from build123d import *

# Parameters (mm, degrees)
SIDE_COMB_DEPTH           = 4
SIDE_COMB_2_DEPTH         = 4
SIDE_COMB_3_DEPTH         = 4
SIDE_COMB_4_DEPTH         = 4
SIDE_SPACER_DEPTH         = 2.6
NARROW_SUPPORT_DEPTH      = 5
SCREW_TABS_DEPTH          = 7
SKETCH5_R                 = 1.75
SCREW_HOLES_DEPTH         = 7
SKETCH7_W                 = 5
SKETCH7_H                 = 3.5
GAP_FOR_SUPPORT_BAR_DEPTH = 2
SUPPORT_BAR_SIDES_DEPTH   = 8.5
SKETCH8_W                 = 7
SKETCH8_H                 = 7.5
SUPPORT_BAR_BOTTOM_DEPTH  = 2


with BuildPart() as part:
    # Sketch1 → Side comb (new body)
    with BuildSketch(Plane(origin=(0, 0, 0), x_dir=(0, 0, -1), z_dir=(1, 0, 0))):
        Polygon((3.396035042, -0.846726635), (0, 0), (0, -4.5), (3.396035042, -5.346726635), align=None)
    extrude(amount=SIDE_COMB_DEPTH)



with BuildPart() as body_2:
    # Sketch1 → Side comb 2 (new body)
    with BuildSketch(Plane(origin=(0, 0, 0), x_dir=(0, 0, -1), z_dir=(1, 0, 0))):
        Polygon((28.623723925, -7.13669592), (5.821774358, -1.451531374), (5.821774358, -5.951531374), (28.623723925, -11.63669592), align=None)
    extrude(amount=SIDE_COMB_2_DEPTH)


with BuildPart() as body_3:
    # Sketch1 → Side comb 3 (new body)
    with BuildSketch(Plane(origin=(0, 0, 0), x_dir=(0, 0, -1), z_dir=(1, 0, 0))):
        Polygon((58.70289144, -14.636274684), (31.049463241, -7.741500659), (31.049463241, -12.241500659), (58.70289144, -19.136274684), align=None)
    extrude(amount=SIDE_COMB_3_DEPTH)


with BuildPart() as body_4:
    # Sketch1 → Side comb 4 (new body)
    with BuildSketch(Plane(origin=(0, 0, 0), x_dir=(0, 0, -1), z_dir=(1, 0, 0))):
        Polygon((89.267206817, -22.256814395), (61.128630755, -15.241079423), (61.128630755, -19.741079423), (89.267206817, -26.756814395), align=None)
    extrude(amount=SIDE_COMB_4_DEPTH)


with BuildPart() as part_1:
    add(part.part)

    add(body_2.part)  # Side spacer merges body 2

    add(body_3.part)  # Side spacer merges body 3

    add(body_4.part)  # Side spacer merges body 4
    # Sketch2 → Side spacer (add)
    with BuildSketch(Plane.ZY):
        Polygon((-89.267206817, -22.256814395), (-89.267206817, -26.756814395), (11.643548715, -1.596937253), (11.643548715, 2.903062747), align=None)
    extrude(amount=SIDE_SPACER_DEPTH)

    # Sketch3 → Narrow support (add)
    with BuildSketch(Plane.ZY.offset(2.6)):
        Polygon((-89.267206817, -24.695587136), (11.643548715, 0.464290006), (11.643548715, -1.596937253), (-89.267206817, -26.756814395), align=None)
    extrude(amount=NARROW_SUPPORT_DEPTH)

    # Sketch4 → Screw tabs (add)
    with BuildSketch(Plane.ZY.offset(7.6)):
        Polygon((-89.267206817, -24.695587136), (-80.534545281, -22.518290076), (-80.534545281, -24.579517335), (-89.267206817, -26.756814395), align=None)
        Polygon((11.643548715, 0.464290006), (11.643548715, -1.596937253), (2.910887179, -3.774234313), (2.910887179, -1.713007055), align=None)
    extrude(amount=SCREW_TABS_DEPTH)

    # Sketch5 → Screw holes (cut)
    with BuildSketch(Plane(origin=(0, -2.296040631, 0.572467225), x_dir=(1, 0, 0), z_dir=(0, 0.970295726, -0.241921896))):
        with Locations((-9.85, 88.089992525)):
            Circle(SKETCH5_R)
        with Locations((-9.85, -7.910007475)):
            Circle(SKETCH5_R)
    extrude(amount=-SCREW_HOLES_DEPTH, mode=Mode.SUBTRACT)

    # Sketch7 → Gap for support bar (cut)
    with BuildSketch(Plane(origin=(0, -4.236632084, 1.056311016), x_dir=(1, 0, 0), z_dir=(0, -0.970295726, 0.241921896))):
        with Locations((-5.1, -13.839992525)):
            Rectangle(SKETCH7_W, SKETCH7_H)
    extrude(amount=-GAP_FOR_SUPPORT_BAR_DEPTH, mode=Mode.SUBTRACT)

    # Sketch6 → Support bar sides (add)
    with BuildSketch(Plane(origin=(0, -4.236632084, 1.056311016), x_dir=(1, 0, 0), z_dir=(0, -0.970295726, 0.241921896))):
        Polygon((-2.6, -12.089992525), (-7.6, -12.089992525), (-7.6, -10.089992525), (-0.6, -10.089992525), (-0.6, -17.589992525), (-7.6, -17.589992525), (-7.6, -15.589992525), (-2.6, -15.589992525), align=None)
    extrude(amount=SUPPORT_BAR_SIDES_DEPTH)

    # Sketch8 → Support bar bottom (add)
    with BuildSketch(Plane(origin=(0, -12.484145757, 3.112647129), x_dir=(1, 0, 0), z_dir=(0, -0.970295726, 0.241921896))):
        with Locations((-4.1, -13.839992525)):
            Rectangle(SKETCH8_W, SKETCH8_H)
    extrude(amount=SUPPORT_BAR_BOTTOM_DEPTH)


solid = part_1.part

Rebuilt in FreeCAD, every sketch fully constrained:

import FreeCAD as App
import Part
import Sketcher

V = App.Vector
Q = App.Units.Quantity

doc = App.newDocument("Part")
body = doc.addObject("PartDesign::Body", "Body")

# Sketch on YZ plane
sketch1 = body.newObject("Sketcher::SketchObject", "Sketch")
sketch1.AttachmentSupport = (doc.getObject("YZ_Plane"), [""])
sketch1.MapMode = "FlatFace"
sketch1.addGeometry(Part.LineSegment(V(-0.8, -3.4, 0), V(0, 0, 0)), False)
sketch1.addGeometry(Part.LineSegment(V(0, 0, 0), V(-4.5, 0, 0)), False)
sketch1.addGeometry(Part.LineSegment(V(-4.5, 0, 0), V(-5.3, -3.4, 0)), False)
sketch1.addGeometry(Part.LineSegment(V(-5.3, -3.4, 0), V(-0.8, -3.4, 0)), False)
sketch1.addConstraint(Sketcher.Constraint("Coincident", 0, 2, 1, 1))
sketch1.addConstraint(Sketcher.Constraint("Coincident", 1, 2, 2, 1))
sketch1.addConstraint(Sketcher.Constraint("Coincident", 2, 2, 3, 1))
sketch1.addConstraint(Sketcher.Constraint("Coincident", 3, 2, 0, 1))
sketch1.addConstraint(Sketcher.Constraint("Horizontal", 1))
sketch1.addConstraint(Sketcher.Constraint("Horizontal", 3))
sketch1.addConstraint(Sketcher.Constraint("Coincident", 0, 2, -1, 1))
sketch1.addConstraint(Sketcher.Constraint("Parallel", 0, 2))
sketch1.addConstraint(Sketcher.Constraint("Angle", 0, Q("76 deg")))
sketch1.addConstraint(Sketcher.Constraint("DistanceX", 1, 2, 1, 1, 4.5))
sketch1.addConstraint(Sketcher.Constraint("Distance", 0, 3.5))
pad1 = body.newObject("PartDesign::Pad", "Pad")
pad1.Profile = sketch1
pad1.Length = 4
body2 = doc.addObject("PartDesign::Body", "Body001")

# Sketch on YZ plane
sketch2 = body2.newObject("Sketcher::SketchObject", "Sketch001")
sketch2.AttachmentSupport = (doc.getObject("YZ_Plane001"), [""])
sketch2.MapMode = "FlatFace"
sketch2.addGeometry(Part.LineSegment(V(-7.1, -28.6, 0), V(-1.5, -5.8, 0)), False)
sketch2.addGeometry(Part.LineSegment(V(-1.5, -5.8, 0), V(-6, -5.8, 0)), False)
sketch2.addGeometry(Part.LineSegment(V(-6, -5.8, 0), V(-11.6, -28.6, 0)), False)
sketch2.addGeometry(Part.LineSegment(V(-11.6, -28.6, 0), V(-7.1, -28.6, 0)), False)
sketch2.addConstraint(Sketcher.Constraint("Coincident", 0, 2, 1, 1))
sketch2.addConstraint(Sketcher.Constraint("Coincident", 1, 2, 2, 1))
sketch2.addConstraint(Sketcher.Constraint("Coincident", 2, 2, 3, 1))
sketch2.addConstraint(Sketcher.Constraint("Coincident", 3, 2, 0, 1))
sketch2.addConstraint(Sketcher.Constraint("Horizontal", 1))
sketch2.addConstraint(Sketcher.Constraint("Horizontal", 3))
sketch2.addConstraint(Sketcher.Constraint("Parallel", 0, 2))
sketch2.addConstraint(Sketcher.Constraint("Angle", 0, Q("76 deg")))
sketch2.addConstraint(Sketcher.Constraint("DistanceX", 1, 2, 1, 1, 4.5))
sketch2.addConstraint(Sketcher.Constraint("Distance", 0, 23.5))
sketch2.addConstraint(Sketcher.Constraint("DistanceX", 0, 2, -1, 1, 1.451531))
sketch2.addConstraint(Sketcher.Constraint("DistanceY", 0, 2, -1, 1, 5.821774))
pad2 = body2.newObject("PartDesign::Pad", "Pad001")
pad2.Profile = sketch2
pad2.Length = 4
body3 = doc.addObject("PartDesign::Body", "Body002")

# Sketch on YZ plane
sketch3 = body3.newObject("Sketcher::SketchObject", "Sketch002")
sketch3.AttachmentSupport = (doc.getObject("YZ_Plane002"), [""])
sketch3.MapMode = "FlatFace"
sketch3.addGeometry(Part.LineSegment(V(-14.6, -58.7, 0), V(-7.7, -31, 0)), False)
sketch3.addGeometry(Part.LineSegment(V(-7.7, -31, 0), V(-12.2, -31, 0)), False)
sketch3.addGeometry(Part.LineSegment(V(-12.2, -31, 0), V(-19.1, -58.7, 0)), False)
sketch3.addGeometry(Part.LineSegment(V(-19.1, -58.7, 0), V(-14.6, -58.7, 0)), False)
sketch3.addConstraint(Sketcher.Constraint("Coincident", 0, 2, 1, 1))
sketch3.addConstraint(Sketcher.Constraint("Coincident", 1, 2, 2, 1))
sketch3.addConstraint(Sketcher.Constraint("Coincident", 2, 2, 3, 1))
sketch3.addConstraint(Sketcher.Constraint("Coincident", 3, 2, 0, 1))
sketch3.addConstraint(Sketcher.Constraint("Horizontal", 1))
sketch3.addConstraint(Sketcher.Constraint("Horizontal", 3))
sketch3.addConstraint(Sketcher.Constraint("Parallel", 0, 2))
sketch3.addConstraint(Sketcher.Constraint("Angle", 0, Q("76 deg")))
sketch3.addConstraint(Sketcher.Constraint("DistanceX", 1, 2, 1, 1, 4.5))
sketch3.addConstraint(Sketcher.Constraint("Distance", 0, 28.5))
sketch3.addConstraint(Sketcher.Constraint("DistanceX", 0, 2, -1, 1, 7.741501))
sketch3.addConstraint(Sketcher.Constraint("DistanceY", 2, 2, -1, 1, 58.702891))
pad3 = body3.newObject("PartDesign::Pad", "Pad002")
pad3.Profile = sketch3
pad3.Length = 4
body4 = doc.addObject("PartDesign::Body", "Body003")

# Sketch on YZ plane
sketch4 = body4.newObject("Sketcher::SketchObject", "Sketch003")
sketch4.AttachmentSupport = (doc.getObject("YZ_Plane003"), [""])
sketch4.MapMode = "FlatFace"
sketch4.addGeometry(Part.LineSegment(V(-22.3, -89.3, 0), V(-15.2, -61.1, 0)), False)
sketch4.addGeometry(Part.LineSegment(V(-15.2, -61.1, 0), V(-19.7, -61.1, 0)), False)
sketch4.addGeometry(Part.LineSegment(V(-19.7, -61.1, 0), V(-26.8, -89.3, 0)), False)
sketch4.addGeometry(Part.LineSegment(V(-26.8, -89.3, 0), V(-22.3, -89.3, 0)), False)
sketch4.addConstraint(Sketcher.Constraint("Coincident", 0, 2, 1, 1))
sketch4.addConstraint(Sketcher.Constraint("Coincident", 1, 2, 2, 1))
sketch4.addConstraint(Sketcher.Constraint("Coincident", 2, 2, 3, 1))
sketch4.addConstraint(Sketcher.Constraint("Coincident", 3, 2, 0, 1))
sketch4.addConstraint(Sketcher.Constraint("Horizontal", 1))
sketch4.addConstraint(Sketcher.Constraint("Horizontal", 3))
sketch4.addConstraint(Sketcher.Constraint("Parallel", 0, 2))
sketch4.addConstraint(Sketcher.Constraint("Angle", 0, Q("76 deg")))
sketch4.addConstraint(Sketcher.Constraint("Distance", 0, 29.0))
sketch4.addConstraint(Sketcher.Constraint("DistanceX", 1, 2, 1, 1, 4.5))
sketch4.addConstraint(Sketcher.Constraint("DistanceX", 0, 2, -1, 1, 15.241079))
sketch4.addConstraint(Sketcher.Constraint("DistanceY", 0, 2, -1, 1, 61.128631))
pad4 = body4.newObject("PartDesign::Pad", "Pad003")
pad4.Profile = sketch4
pad4.Length = 4
body.AllowCompound = True
doc.recompute()

boolean = body.newObject("PartDesign::Boolean", "Boolean")
boolean.Type = "Fuse"
boolean.addObjects([body2])
doc.recompute()

boolean2 = body.newObject("PartDesign::Boolean", "Boolean001")
boolean2.Type = "Fuse"
boolean2.addObjects([body3])
doc.recompute()

boolean3 = body.newObject("PartDesign::Boolean", "Boolean002")
boolean3.Type = "Fuse"
boolean3.addObjects([body4])

# Sketch on YZ plane
sketch5 = body.newObject("Sketcher::SketchObject", "Sketch004")
sketch5.AttachmentSupport = (doc.getObject("YZ_Plane"), [""])
sketch5.MapMode = "FlatFace"
sketch5.addGeometry(Part.LineSegment(V(-22.3, -89.3, 0), V(-26.8, -89.3, 0)), False)
sketch5.addGeometry(Part.LineSegment(V(-26.8, -89.3, 0), V(-1.6, 11.6, 0)), False)
sketch5.addGeometry(Part.LineSegment(V(-1.6, 11.6, 0), V(2.9, 11.6, 0)), False)
sketch5.addGeometry(Part.LineSegment(V(2.9, 11.6, 0), V(-22.3, -89.3, 0)), False)
sketch5.addConstraint(Sketcher.Constraint("Coincident", 0, 2, 1, 1))
sketch5.addConstraint(Sketcher.Constraint("Coincident", 1, 2, 2, 1))
sketch5.addConstraint(Sketcher.Constraint("Coincident", 2, 2, 3, 1))
sketch5.addConstraint(Sketcher.Constraint("Coincident", 3, 2, 0, 1))
sketch5.addConstraint(Sketcher.Constraint("Horizontal", 0))
sketch5.addConstraint(Sketcher.Constraint("Horizontal", 2))
sketch5.addConstraint(Sketcher.Constraint("Parallel", 1, 3))
sketch5.addConstraint(Sketcher.Constraint("Angle", 1, Q("76 deg")))
sketch5.addConstraint(Sketcher.Constraint("Distance", 1, 104.0))
sketch5.addConstraint(Sketcher.Constraint("DistanceX", 0, 2, 0, 1, 4.5))
sketch5.addConstraint(Sketcher.Constraint("DistanceY", -1, 1, 1, 2, 11.643549))
sketch5.addConstraint(Sketcher.Constraint("DistanceX", 0, 2, -1, 1, 26.756814))
pad5 = body.newObject("PartDesign::Pad", "Pad004")
pad5.Profile = sketch5
pad5.Length = 2.6
pad5.Reversed = True

# Sketch on YZ plane
sketch6 = body.newObject("Sketcher::SketchObject", "Sketch005")
sketch6.AttachmentSupport = (doc.getObject("YZ_Plane"), [""])
sketch6.MapMode = "FlatFace"
sketch6.AttachmentOffset = App.Placement(V(0, 0, -2.6), App.Rotation())
sketch6.addGeometry(Part.LineSegment(V(0.5, 11.6, 0), V(-24.7, -89.3, 0)), False)
sketch6.addGeometry(Part.LineSegment(V(-24.7, -89.3, 0), V(-26.8, -89.3, 0)), False)
sketch6.addGeometry(Part.LineSegment(V(-26.8, -89.3, 0), V(-1.6, 11.6, 0)), False)
sketch6.addGeometry(Part.LineSegment(V(-1.6, 11.6, 0), V(0.5, 11.6, 0)), False)
sketch6.addConstraint(Sketcher.Constraint("Coincident", 0, 2, 1, 1))
sketch6.addConstraint(Sketcher.Constraint("Coincident", 1, 2, 2, 1))
sketch6.addConstraint(Sketcher.Constraint("Coincident", 2, 2, 3, 1))
sketch6.addConstraint(Sketcher.Constraint("Coincident", 3, 2, 0, 1))
sketch6.addConstraint(Sketcher.Constraint("Horizontal", 1))
sketch6.addConstraint(Sketcher.Constraint("Horizontal", 3))
sketch6.addConstraint(Sketcher.Constraint("Parallel", 0, 2))
sketch6.addConstraint(Sketcher.Constraint("Angle", 0, Q("-104 deg")))
sketch6.addConstraint(Sketcher.Constraint("Distance", 0, 104.0))
sketch6.addConstraint(Sketcher.Constraint("DistanceX", 1, 2, 1, 1, 2.061227))
sketch6.addConstraint(Sketcher.Constraint("DistanceY", -1, 1, 2, 2, 11.643549))
sketch6.addConstraint(Sketcher.Constraint("DistanceX", -1, 1, 3, 2, 0.46429))
pad6 = body.newObject("PartDesign::Pad", "Pad005")
pad6.Profile = sketch6
pad6.Length = 5
pad6.Reversed = True

# Sketch on YZ plane
sketch7 = body.newObject("Sketcher::SketchObject", "Sketch006")
sketch7.AttachmentSupport = (doc.getObject("YZ_Plane"), [""])
sketch7.MapMode = "FlatFace"
sketch7.AttachmentOffset = App.Placement(V(0, 0, -7.6), App.Rotation())
sketch7.addGeometry(Part.LineSegment(V(-22.5, -80.5, 0), V(-24.7, -89.3, 0)), False)
sketch7.addGeometry(Part.LineSegment(V(-24.7, -89.3, 0), V(-26.8, -89.3, 0)), False)
sketch7.addGeometry(Part.LineSegment(V(-26.8, -89.3, 0), V(-24.6, -80.5, 0)), False)
sketch7.addGeometry(Part.LineSegment(V(-24.6, -80.5, 0), V(-22.5, -80.5, 0)), False)
sketch7.addGeometry(Part.LineSegment(V(-1.6, 11.6, 0), V(0.5, 11.6, 0)), False)
sketch7.addGeometry(Part.LineSegment(V(0.5, 11.6, 0), V(-1.7, 2.9, 0)), False)
sketch7.addGeometry(Part.LineSegment(V(-1.7, 2.9, 0), V(-3.8, 2.9, 0)), False)
sketch7.addGeometry(Part.LineSegment(V(-3.8, 2.9, 0), V(-1.6, 11.6, 0)), False)
sketch7.addConstraint(Sketcher.Constraint("Coincident", 0, 2, 1, 1))
sketch7.addConstraint(Sketcher.Constraint("Coincident", 1, 2, 2, 1))
sketch7.addConstraint(Sketcher.Constraint("Coincident", 2, 2, 3, 1))
sketch7.addConstraint(Sketcher.Constraint("Coincident", 3, 2, 0, 1))
sketch7.addConstraint(Sketcher.Constraint("Coincident", 4, 2, 5, 1))
sketch7.addConstraint(Sketcher.Constraint("Coincident", 5, 2, 6, 1))
sketch7.addConstraint(Sketcher.Constraint("Coincident", 6, 2, 7, 1))
sketch7.addConstraint(Sketcher.Constraint("Coincident", 7, 2, 4, 1))
sketch7.addConstraint(Sketcher.Constraint("Horizontal", 1))
sketch7.addConstraint(Sketcher.Constraint("Horizontal", 3))
sketch7.addConstraint(Sketcher.Constraint("Horizontal", 4))
sketch7.addConstraint(Sketcher.Constraint("Horizontal", 6))
sketch7.addConstraint(Sketcher.Constraint("Parallel", 0, 2))
sketch7.addConstraint(Sketcher.Constraint("Parallel", 2, 5))
sketch7.addConstraint(Sketcher.Constraint("Parallel", 5, 7))
sketch7.addConstraint(Sketcher.Constraint("Equal", 3, 4))
sketch7.addConstraint(Sketcher.Constraint("Equal", 2, 5))
sketch7.addConstraint(Sketcher.Constraint("Angle", 0, Q("-104 deg")))
sketch7.addConstraint(Sketcher.Constraint("Distance", 0, 9.0))
sketch7.addConstraint(Sketcher.Constraint("DistanceX", 1, 2, 1, 1, 2.061227))
sketch7.addConstraint(Sketcher.Constraint("DistanceX", 3, 2, -1, 1, 22.51829))
sketch7.addConstraint(Sketcher.Constraint("DistanceX", -1, 1, 4, 2, 0.46429))
sketch7.addConstraint(Sketcher.Constraint("DistanceY", -1, 1, 4, 2, 11.643549))
sketch7.addConstraint(Sketcher.Constraint("DistanceY", 0, 2, -1, 1, 89.267207))
pad7 = body.newObject("PartDesign::Pad", "Pad006")
pad7.Profile = sketch7
pad7.Length = 7
pad7.Reversed = True

# Sketch on an angled plane
sketch8 = body.newObject("Sketcher::SketchObject", "Sketch007")
sketch8.Placement = App.Placement(V(0, -2.296041, 0.572467), App.Rotation(V(1, 0, 0), V(0, -0.241921896, -0.970295726), V(0, 0.970295726, -0.241921896), "ZXY"))
sketch8.addGeometry(Part.Circle(V(-9.8, 88.1, 0), V(0, 0, 1), 1.8), False)
sketch8.addGeometry(Part.Circle(V(-9.8, -7.9, 0), V(0, 0, 1), 1.8), False)
sketch8.addConstraint(Sketcher.Constraint("Equal", 0, 1))
sketch8.addConstraint(Sketcher.Constraint("Vertical", 0, 3, 1, 3))
sketch8.addConstraint(Sketcher.Constraint("Diameter", 0, 3.5))
sketch8.addConstraint(Sketcher.Constraint("DistanceY", 1, 3, 0, 3, 96.0))
sketch8.addConstraint(Sketcher.Constraint("DistanceX", 0, 3, -1, 1, 9.85))
sketch8.addConstraint(Sketcher.Constraint("DistanceY", -1, 1, 0, 3, 88.089992))
pocket1 = body.newObject("PartDesign::Pocket", "Pocket")
pocket1.Profile = sketch8
pocket1.Length = 7

# Sketch on an angled plane
sketch9 = body.newObject("Sketcher::SketchObject", "Sketch008")
sketch9.Placement = App.Placement(V(0, -4.236632, 1.056311), App.Rotation(V(1, 0, 0), V(0, 0.241921896, 0.970295726), V(0, -0.970295726, 0.241921896), "ZXY"))
sketch9.addGeometry(Part.LineSegment(V(-7.6, -12.1, 0), V(-7.6, -15.6, 0)), False)
sketch9.addGeometry(Part.LineSegment(V(-7.6, -15.6, 0), V(-2.6, -15.6, 0)), False)
sketch9.addGeometry(Part.LineSegment(V(-2.6, -15.6, 0), V(-2.6, -12.1, 0)), False)
sketch9.addGeometry(Part.LineSegment(V(-2.6, -12.1, 0), V(-7.6, -12.1, 0)), False)
sketch9.addConstraint(Sketcher.Constraint("Coincident", 0, 2, 1, 1))
sketch9.addConstraint(Sketcher.Constraint("Coincident", 1, 2, 2, 1))
sketch9.addConstraint(Sketcher.Constraint("Coincident", 2, 2, 3, 1))
sketch9.addConstraint(Sketcher.Constraint("Coincident", 3, 2, 0, 1))
sketch9.addConstraint(Sketcher.Constraint("Vertical", 0))
sketch9.addConstraint(Sketcher.Constraint("Horizontal", 1))
sketch9.addConstraint(Sketcher.Constraint("Vertical", 2))
sketch9.addConstraint(Sketcher.Constraint("Horizontal", 3))
sketch9.addConstraint(Sketcher.Constraint("DistanceX", 1, 1, 1, 2, 5.0))
sketch9.addConstraint(Sketcher.Constraint("DistanceY", 0, 2, 0, 1, 3.5))
sketch9.addConstraint(Sketcher.Constraint("DistanceX", 0, 2, -1, 1, 7.6))
sketch9.addConstraint(Sketcher.Constraint("DistanceY", 0, 2, -1, 1, 15.589993))
pocket2 = body.newObject("PartDesign::Pocket", "Pocket001")
pocket2.Profile = sketch9
pocket2.Length = 2

# Sketch on an angled plane
sketch10 = body.newObject("Sketcher::SketchObject", "Sketch009")
sketch10.Placement = App.Placement(V(0, -4.236632, 1.056311), App.Rotation(V(1, 0, 0), V(0, 0.241921896, 0.970295726), V(0, -0.970295726, 0.241921896), "ZXY"))
sketch10.addGeometry(Part.LineSegment(V(-7.6, -12.1, 0), V(-2.6, -12.1, 0)), False)
sketch10.addGeometry(Part.LineSegment(V(-2.6, -12.1, 0), V(-2.6, -15.6, 0)), False)
sketch10.addGeometry(Part.LineSegment(V(-2.6, -15.6, 0), V(-7.6, -15.6, 0)), False)
sketch10.addGeometry(Part.LineSegment(V(-7.6, -15.6, 0), V(-7.6, -17.6, 0)), False)
sketch10.addGeometry(Part.LineSegment(V(-7.6, -17.6, 0), V(-0.6, -17.6, 0)), False)
sketch10.addGeometry(Part.LineSegment(V(-0.6, -17.6, 0), V(-0.6, -10.1, 0)), False)
sketch10.addGeometry(Part.LineSegment(V(-0.6, -10.1, 0), V(-7.6, -10.1, 0)), False)
sketch10.addGeometry(Part.LineSegment(V(-7.6, -10.1, 0), V(-7.6, -12.1, 0)), False)
sketch10.addConstraint(Sketcher.Constraint("Coincident", 0, 2, 1, 1))
sketch10.addConstraint(Sketcher.Constraint("Coincident", 1, 2, 2, 1))
sketch10.addConstraint(Sketcher.Constraint("Coincident", 2, 2, 3, 1))
sketch10.addConstraint(Sketcher.Constraint("Coincident", 3, 2, 4, 1))
sketch10.addConstraint(Sketcher.Constraint("Coincident", 4, 2, 5, 1))
sketch10.addConstraint(Sketcher.Constraint("Coincident", 5, 2, 6, 1))
sketch10.addConstraint(Sketcher.Constraint("Coincident", 6, 2, 7, 1))
sketch10.addConstraint(Sketcher.Constraint("Coincident", 7, 2, 0, 1))
sketch10.addConstraint(Sketcher.Constraint("Horizontal", 0))
sketch10.addConstraint(Sketcher.Constraint("Vertical", 1))
sketch10.addConstraint(Sketcher.Constraint("Horizontal", 2))
sketch10.addConstraint(Sketcher.Constraint("Vertical", 3))
sketch10.addConstraint(Sketcher.Constraint("Horizontal", 4))
sketch10.addConstraint(Sketcher.Constraint("Vertical", 5))
sketch10.addConstraint(Sketcher.Constraint("Horizontal", 6))
sketch10.addConstraint(Sketcher.Constraint("Vertical", 7))
sketch10.addConstraint(Sketcher.Constraint("Vertical", 3, 2, 6, 2))
sketch10.addConstraint(Sketcher.Constraint("Equal", 3, 7))
sketch10.addConstraint(Sketcher.Constraint("DistanceX", 0, 1, 0, 2, 5.0))
sketch10.addConstraint(Sketcher.Constraint("DistanceX", 4, 1, 4, 2, 7.0))
sketch10.addConstraint(Sketcher.Constraint("DistanceY", 3, 2, 3, 1, 2.0))
sketch10.addConstraint(Sketcher.Constraint("DistanceY", 1, 2, 1, 1, 3.5))
sketch10.addConstraint(Sketcher.Constraint("DistanceX", 0, 2, -1, 1, 2.6))
sketch10.addConstraint(Sketcher.Constraint("DistanceY", 0, 2, -1, 1, 12.089993))
pad8 = body.newObject("PartDesign::Pad", "Pad007")
pad8.Profile = sketch10
pad8.Length = 8.5

# Sketch on an angled plane
sketch11 = body.newObject("Sketcher::SketchObject", "Sketch010")
sketch11.Placement = App.Placement(V(0, -12.484146, 3.112647), App.Rotation(V(1, 0, 0), V(0, 0.241921896, 0.970295726), V(0, -0.970295726, 0.241921896), "ZXY"))
sketch11.addGeometry(Part.LineSegment(V(-8, -10, 0), V(-8, -18, 0)), False)
sketch11.addGeometry(Part.LineSegment(V(-8, -18, 0), V(-1, -18, 0)), False)
sketch11.addGeometry(Part.LineSegment(V(-1, -18, 0), V(-1, -10, 0)), False)
sketch11.addGeometry(Part.LineSegment(V(-1, -10, 0), V(-8, -10, 0)), False)
sketch11.addConstraint(Sketcher.Constraint("Coincident", 0, 2, 1, 1))
sketch11.addConstraint(Sketcher.Constraint("Coincident", 1, 2, 2, 1))
sketch11.addConstraint(Sketcher.Constraint("Coincident", 2, 2, 3, 1))
sketch11.addConstraint(Sketcher.Constraint("Coincident", 3, 2, 0, 1))
sketch11.addConstraint(Sketcher.Constraint("Vertical", 0))
sketch11.addConstraint(Sketcher.Constraint("Horizontal", 1))
sketch11.addConstraint(Sketcher.Constraint("Vertical", 2))
sketch11.addConstraint(Sketcher.Constraint("Horizontal", 3))
sketch11.addConstraint(Sketcher.Constraint("DistanceX", 1, 1, 1, 2, 7.0))
sketch11.addConstraint(Sketcher.Constraint("DistanceY", 0, 2, 0, 1, 7.5))
sketch11.addConstraint(Sketcher.Constraint("DistanceX", 0, 2, -1, 1, 7.6))
sketch11.addConstraint(Sketcher.Constraint("DistanceY", 0, 2, -1, 1, 17.589993))
pad9 = body.newObject("PartDesign::Pad", "Pad008")
pad9.Profile = sketch11
pad9.Length = 2

doc.recompute()
